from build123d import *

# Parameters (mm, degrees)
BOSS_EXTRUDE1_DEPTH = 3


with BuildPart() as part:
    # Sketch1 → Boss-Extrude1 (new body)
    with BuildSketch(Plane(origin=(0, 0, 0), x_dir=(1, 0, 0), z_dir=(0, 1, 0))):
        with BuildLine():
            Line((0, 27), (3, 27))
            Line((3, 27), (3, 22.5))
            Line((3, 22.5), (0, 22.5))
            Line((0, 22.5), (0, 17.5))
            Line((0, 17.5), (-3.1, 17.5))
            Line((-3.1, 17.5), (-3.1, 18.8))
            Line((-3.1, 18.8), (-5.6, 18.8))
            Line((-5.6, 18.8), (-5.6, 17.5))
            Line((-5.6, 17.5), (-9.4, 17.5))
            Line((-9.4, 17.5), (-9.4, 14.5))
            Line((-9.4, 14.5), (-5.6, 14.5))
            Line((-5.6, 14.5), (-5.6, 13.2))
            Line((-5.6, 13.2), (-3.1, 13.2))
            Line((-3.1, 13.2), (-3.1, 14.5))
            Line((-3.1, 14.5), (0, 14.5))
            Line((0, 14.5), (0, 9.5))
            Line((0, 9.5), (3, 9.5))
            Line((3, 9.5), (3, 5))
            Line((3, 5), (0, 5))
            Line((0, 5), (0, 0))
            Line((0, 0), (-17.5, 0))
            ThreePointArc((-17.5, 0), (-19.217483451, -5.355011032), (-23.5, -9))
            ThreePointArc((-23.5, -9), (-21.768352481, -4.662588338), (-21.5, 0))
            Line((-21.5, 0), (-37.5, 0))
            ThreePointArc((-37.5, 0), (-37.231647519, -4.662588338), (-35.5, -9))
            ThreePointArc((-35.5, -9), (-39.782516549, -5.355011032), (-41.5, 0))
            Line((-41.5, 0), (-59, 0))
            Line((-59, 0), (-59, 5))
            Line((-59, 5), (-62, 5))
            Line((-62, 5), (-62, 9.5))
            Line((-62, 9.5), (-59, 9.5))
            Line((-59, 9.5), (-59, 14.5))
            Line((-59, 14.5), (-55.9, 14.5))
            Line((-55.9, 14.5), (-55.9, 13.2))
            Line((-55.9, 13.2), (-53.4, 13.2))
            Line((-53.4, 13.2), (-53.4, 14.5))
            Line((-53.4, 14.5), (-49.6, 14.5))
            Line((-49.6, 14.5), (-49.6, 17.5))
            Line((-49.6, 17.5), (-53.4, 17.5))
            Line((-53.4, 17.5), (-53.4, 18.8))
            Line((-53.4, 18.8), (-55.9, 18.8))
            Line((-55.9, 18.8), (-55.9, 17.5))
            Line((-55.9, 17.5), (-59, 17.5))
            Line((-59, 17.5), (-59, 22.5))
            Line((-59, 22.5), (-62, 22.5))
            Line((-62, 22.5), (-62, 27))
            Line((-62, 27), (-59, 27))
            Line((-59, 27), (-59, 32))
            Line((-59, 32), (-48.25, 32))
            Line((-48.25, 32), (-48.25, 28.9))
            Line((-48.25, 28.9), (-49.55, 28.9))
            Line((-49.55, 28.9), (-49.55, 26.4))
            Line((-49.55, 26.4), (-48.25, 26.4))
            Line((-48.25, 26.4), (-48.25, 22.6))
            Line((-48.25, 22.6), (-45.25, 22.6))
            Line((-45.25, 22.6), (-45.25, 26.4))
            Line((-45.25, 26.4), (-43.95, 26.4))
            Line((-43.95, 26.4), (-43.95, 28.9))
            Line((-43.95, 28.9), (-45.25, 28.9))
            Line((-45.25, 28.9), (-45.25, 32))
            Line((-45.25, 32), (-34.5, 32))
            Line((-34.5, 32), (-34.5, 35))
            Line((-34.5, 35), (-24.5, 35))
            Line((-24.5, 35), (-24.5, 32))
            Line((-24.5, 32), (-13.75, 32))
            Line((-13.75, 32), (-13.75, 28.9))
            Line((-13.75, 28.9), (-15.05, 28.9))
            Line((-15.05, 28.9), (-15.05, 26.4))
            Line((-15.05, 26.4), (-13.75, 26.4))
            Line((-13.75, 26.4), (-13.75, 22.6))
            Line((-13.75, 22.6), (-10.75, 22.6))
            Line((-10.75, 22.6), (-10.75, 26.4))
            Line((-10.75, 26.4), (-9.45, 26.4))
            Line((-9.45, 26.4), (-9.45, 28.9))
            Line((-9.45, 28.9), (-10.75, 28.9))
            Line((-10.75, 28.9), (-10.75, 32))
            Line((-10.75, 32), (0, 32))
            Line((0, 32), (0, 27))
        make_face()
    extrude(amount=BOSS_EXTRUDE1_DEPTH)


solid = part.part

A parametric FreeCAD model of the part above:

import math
import FreeCAD as App
import Part
import Sketcher

doc = App.newDocument("Part")
params = doc.addObject("Spreadsheet::Sheet", "Params")
for row, (alias, value) in enumerate([
    ("sketch1_width", "3 mm"),
    ("sketch1_width2", "10 mm"),
    ("sketch1_width3", "16 mm"),
    ("sketch1_height", "5 mm"),
    ("sketch1_width4", "1.3 mm"),
    ("pad1_length", "3 mm"),
], start=1):
    params.set(f"A{row}", alias)
    params.set(f"B{row}", "=" + value)
    params.setAlias(f"B{row}", alias)

body = doc.addObject("PartDesign::Body", "Body")

# Sketch on XZ plane
sketch1 = doc.addObject("Sketcher::SketchObject", "Sketch")
body.addObject(sketch1)
sketch1.AttachmentSupport = (doc.XZ_Plane, [""])
sketch1.MapMode = "FlatFace"
sketch1.addGeometry([
    Part.LineSegment(App.Vector(3, -27, 0), App.Vector(0, -27, 0)),  # 0
    Part.LineSegment(App.Vector(0, -27, 0), App.Vector(0, -32, 0)),  # 1
    Part.LineSegment(App.Vector(0, -32, 0), App.Vector(-10.75, -32, 0)),  # 2
    Part.LineSegment(App.Vector(-10.75, -32, 0), App.Vector(-10.75, -28.9, 0)),  # 3
    Part.LineSegment(App.Vector(-10.75, -28.9, 0), App.Vector(-9.45, -28.9, 0)),  # 4
    Part.LineSegment(App.Vector(-9.45, -28.9, 0), App.Vector(-9.45, -26.4, 0)),  # 5
    Part.LineSegment(App.Vector(-9.45, -26.4, 0), App.Vector(-10.75, -26.4, 0)),  # 6
    Part.LineSegment(App.Vector(-10.75, -26.4, 0), App.Vector(-10.75, -22.6, 0)),  # 7
    Part.LineSegment(App.Vector(-10.75, -22.6, 0), App.Vector(-13.75, -22.6, 0)),  # 8
    Part.LineSegment(App.Vector(-13.75, -22.6, 0), App.Vector(-13.75, -26.4, 0)),  # 9
    Part.LineSegment(App.Vector(-13.75, -26.4, 0), App.Vector(-15.05, -26.4, 0)),  # 10
    Part.LineSegment(App.Vector(-15.05, -26.4, 0), App.Vector(-15.05, -28.9, 0)),  # 11
    Part.LineSegment(App.Vector(-15.05, -28.9, 0), App.Vector(-13.75, -28.9, 0)),  # 12
    Part.LineSegment(App.Vector(-13.75, -28.9, 0), App.Vector(-13.75, -32, 0)),  # 13
    Part.LineSegment(App.Vector(-13.75, -32, 0), App.Vector(-24.5, -32, 0)),  # 14
    Part.LineSegment(App.Vector(-24.5, -32, 0), App.Vector(-24.5, -35, 0)),  # 15
    Part.LineSegment(App.Vector(-24.5, -35, 0), App.Vector(-34.5, -35, 0)),  # 16
    Part.LineSegment(App.Vector(-34.5, -35, 0), App.Vector(-34.5, -32, 0)),  # 17
    Part.LineSegment(App.Vector(-34.5, -32, 0), App.Vector(-45.25, -32, 0)),  # 18
    Part.LineSegment(App.Vector(-45.25, -32, 0), App.Vector(-45.25, -28.9, 0)),  # 19
    Part.LineSegment(App.Vector(-45.25, -28.9, 0), App.Vector(-43.95, -28.9, 0)),  # 20
    Part.LineSegment(App.Vector(-43.95, -28.9, 0), App.Vector(-43.95, -26.4, 0)),  # 21
    Part.LineSegment(App.Vector(-43.95, -26.4, 0), App.Vector(-45.25, -26.4, 0)),  # 22
    Part.LineSegment(App.Vector(-45.25, -26.4, 0), App.Vector(-45.25, -22.6, 0)),  # 23
    Part.LineSegment(App.Vector(-45.25, -22.6, 0), App.Vector(-48.25, -22.6, 0)),  # 24
    Part.LineSegment(App.Vector(-48.25, -22.6, 0), App.Vector(-48.25, -26.4, 0)),  # 25
    Part.LineSegment(App.Vector(-48.25, -26.4, 0), App.Vector(-49.55, -26.4, 0)),  # 26
    Part.LineSegment(App.Vector(-49.55, -26.4, 0), App.Vector(-49.55, -28.9, 0)),  # 27
    Part.LineSegment(App.Vector(-49.55, -28.9, 0), App.Vector(-48.25, -28.9, 0)),  # 28
    Part.LineSegment(App.Vector(-48.25, -28.9, 0), App.Vector(-48.25, -32, 0)),  # 29
    Part.LineSegment(App.Vector(-48.25, -32, 0), App.Vector(-59, -32, 0)),  # 30
    Part.LineSegment(App.Vector(-59, -32, 0), App.Vector(-59, -27, 0)),  # 31
    Part.LineSegment(App.Vector(-59, -27, 0), App.Vector(-62, -27, 0)),  # 32
    Part.LineSegment(App.Vector(-62, -27, 0), App.Vector(-62, -22.5, 0)),  # 33
    Part.LineSegment(App.Vector(-62, -22.5, 0), App.Vector(-59, -22.5, 0)),  # 34
    Part.LineSegment(App.Vector(-59, -22.5, 0), App.Vector(-59, -17.5, 0)),  # 35
    Part.LineSegment(App.Vector(-59, -17.5, 0), App.Vector(-55.9, -17.5, 0)),  # 36
    Part.LineSegment(App.Vector(-55.9, -17.5, 0), App.Vector(-55.9, -18.8, 0)),  # 37
    Part.LineSegment(App.Vector(-55.9, -18.8, 0), App.Vector(-53.4, -18.8, 0)),  # 38
    Part.LineSegment(App.Vector(-53.4, -18.8, 0), App.Vector(-53.4, -17.5, 0)),  # 39
    Part.LineSegment(App.Vector(-53.4, -17.5, 0), App.Vector(-49.6, -17.5, 0)),  # 40
    Part.LineSegment(App.Vector(-49.6, -17.5, 0), App.Vector(-49.6, -14.5, 0)),  # 41
    Part.LineSegment(App.Vector(-49.6, -14.5, 0), App.Vector(-53.4, -14.5, 0)),  # 42
    Part.LineSegment(App.Vector(-53.4, -14.5, 0), App.Vector(-53.4, -13.2, 0)),  # 43
    Part.LineSegment(App.Vector(-53.4, -13.2, 0), App.Vector(-55.9, -13.2, 0)),  # 44
    Part.LineSegment(App.Vector(-55.9, -13.2, 0), App.Vector(-55.9, -14.5, 0)),  # 45
    Part.LineSegment(App.Vector(-55.9, -14.5, 0), App.Vector(-59, -14.5, 0)),  # 46
    Part.LineSegment(App.Vector(-59, -14.5, 0), App.Vector(-59, -9.5, 0)),  # 47
    Part.LineSegment(App.Vector(-59, -9.5, 0), App.Vector(-62, -9.5, 0)),  # 48
    Part.LineSegment(App.Vector(-62, -9.5, 0), App.Vector(-62, -5, 0)),  # 49
    Part.LineSegment(App.Vector(-62, -5, 0), App.Vector(-59, -5, 0)),  # 50
    Part.LineSegment(App.Vector(-59, -5, 0), App.Vector(-59, 0, 0)),  # 51
    Part.LineSegment(App.Vector(-59, 0, 0), App.Vector(-41.5, 0, 0)),  # 52
    Part.ArcOfCircle(Part.Circle(App.Vector(-31.246623, -0.335584, 0), App.Vector(0, 0, 1), 10.258867), math.radians(114.494439), math.radians(178.125426)),  # 53
    Part.ArcOfCircle(Part.Circle(App.Vector(-23.027193, 1.506043, 0), App.Vector(0, 0, 1), 14.550956), math.radians(149.001558), math.radians(185.940827)),  # 54
    Part.LineSegment(App.Vector(-37.5, 0, 0), App.Vector(-21.5, 0, 0)),  # 55
    Part.ArcOfCircle(Part.Circle(App.Vector(-35.972807, 1.506043, 0), App.Vector(0, 0, 1), 14.550956), math.radians(-5.940827), math.radians(30.998442)),  # 56
    Part.ArcOfCircle(Part.Circle(App.Vector(-27.753377, -0.335584, 0), App.Vector(0, 0, 1), 10.258867), math.radians(1.874574), math.radians(65.505561)),  # 57
    Part.LineSegment(App.Vector(-17.5, 0, 0), App.Vector(0, 0, 0)),  # 58
    Part.LineSegment(App.Vector(0, 0, 0), App.Vector(0, -5, 0)),  # 59
    Part.LineSegment(App.Vector(0, -5, 0), App.Vector(3, -5, 0)),  # 60
    Part.LineSegment(App.Vector(3, -5, 0), App.Vector(3, -9.5, 0)),  # 61
    Part.LineSegment(App.Vector(3, -9.5, 0), App.Vector(0, -9.5, 0)),  # 62
    Part.LineSegment(App.Vector(0, -9.5, 0), App.Vector(0, -14.5, 0)),  # 63
    Part.LineSegment(App.Vector(0, -14.5, 0), App.Vector(-3.1, -14.5, 0)),  # 64
    Part.LineSegment(App.Vector(-3.1, -14.5, 0), App.Vector(-3.1, -13.2, 0)),  # 65
    Part.LineSegment(App.Vector(-3.1, -13.2, 0), App.Vector(-5.6, -13.2, 0)),  # 66
    Part.LineSegment(App.Vector(-5.6, -13.2, 0), App.Vector(-5.6, -14.5, 0)),  # 67
    Part.LineSegment(App.Vector(-5.6, -14.5, 0), App.Vector(-9.4, -14.5, 0)),  # 68
    Part.LineSegment(App.Vector(-9.4, -14.5, 0), App.Vector(-9.4, -17.5, 0)),  # 69
    Part.LineSegment(App.Vector(-9.4, -17.5, 0), App.Vector(-5.6, -17.5, 0)),  # 70
    Part.LineSegment(App.Vector(-5.6, -17.5, 0), App.Vector(-5.6, -18.8, 0)),  # 71
    Part.LineSegment(App.Vector(-5.6, -18.8, 0), App.Vector(-3.1, -18.8, 0)),  # 72
    Part.LineSegment(App.Vector(-3.1, -18.8, 0), App.Vector(-3.1, -17.5, 0)),  # 73
    Part.LineSegment(App.Vector(-3.1, -17.5, 0), App.Vector(0, -17.5, 0)),  # 74
    Part.LineSegment(App.Vector(0, -17.5, 0), App.Vector(0, -22.5, 0)),  # 75
    Part.LineSegment(App.Vector(0, -22.5, 0), App.Vector(3, -22.5, 0)),  # 76
    Part.LineSegment(App.Vector(3, -22.5, 0), App.Vector(3, -27, 0)),  # 77
], False)
sketch1.addConstraint([
    Sketcher.Constraint("Coincident", 0, 2, 1, 1),
    Sketcher.Constraint("Coincident", 1, 2, 2, 1),
    Sketcher.Constraint("Coincident", 2, 2, 3, 1),
    Sketcher.Constraint("Coincident", 3, 2, 4, 1),
    Sketcher.Constraint("Coincident", 4, 2, 5, 1),
    Sketcher.Constraint("Coincident", 5, 2, 6, 1),
    Sketcher.Constraint("Coincident", 6, 2, 7, 1),
    Sketcher.Constraint("Coincident", 7, 2, 8, 1),
    Sketcher.Constraint("Coincident", 8, 2, 9, 1),
    Sketcher.Constraint("Coincident", 9, 2, 10, 1),
    Sketcher.Constraint("Coincident", 10, 2, 11, 1),
    Sketcher.Constraint("Coincident", 11, 2, 12, 1),
    Sketcher.Constraint("Coincident", 12, 2, 13, 1),
    Sketcher.Constraint("Coincident", 13, 2, 14, 1),
    Sketcher.Constraint("Coincident", 14, 2, 15, 1),
    Sketcher.Constraint("Coincident", 15, 2, 16, 1),
    Sketcher.Constraint("Coincident", 16, 2, 17, 1),
    Sketcher.Constraint("Coincident", 17, 2, 18, 1),
    Sketcher.Constraint("Coincident", 18, 2, 19, 1),
    Sketcher.Constraint("Coincident", 19, 2, 20, 1),
    Sketcher.Constraint("Coincident", 20, 2, 21, 1),
    Sketcher.Constraint("Coincident", 21, 2, 22, 1),
    Sketcher.Constraint("Coincident", 22, 2, 23, 1),
    Sketcher.Constraint("Coincident", 23, 2, 24, 1),
    Sketcher.Constraint("Coincident", 24, 2, 25, 1),
    Sketcher.Constraint("Coincident", 25, 2, 26, 1),
    Sketcher.Constraint("Coincident", 26, 2, 27, 1),
    Sketcher.Constraint("Coincident", 27, 2, 28, 1),
    Sketcher.Constraint("Coincident", 28, 2, 29, 1),
    Sketcher.Constraint("Coincident", 29, 2, 30, 1),
    Sketcher.Constraint("Coincident", 30, 2, 31, 1),
    Sketcher.Constraint("Coincident", 31, 2, 32, 1),
    Sketcher.Constraint("Coincident", 32, 2, 33, 1),
    Sketcher.Constraint("Coincident", 33, 2, 34, 1),
    Sketcher.Constraint("Coincident", 34, 2, 35, 1),
    Sketcher.Constraint("Coincident", 35, 2, 36, 1),
    Sketcher.Constraint("Coincident", 36, 2, 37, 1),
    Sketcher.Constraint("Coincident", 37, 2, 38, 1),
    Sketcher.Constraint("Coincident", 38, 2, 39, 1),
    Sketcher.Constraint("Coincident", 39, 2, 40, 1),
    Sketcher.Constraint("Coincident", 40, 2, 41, 1),
    Sketcher.Constraint("Coincident", 41, 2, 42, 1),
    Sketcher.Constraint("Coincident", 42, 2, 43, 1),
    Sketcher.Constraint("Coincident", 43, 2, 44, 1),
    Sketcher.Constraint("Coincident", 44, 2, 45, 1),
    Sketcher.Constraint("Coincident", 45, 2, 46, 1),
    Sketcher.Constraint("Coincident", 46, 2, 47, 1),
    Sketcher.Constraint("Coincident", 47, 2, 48, 1),
    Sketcher.Constraint("Coincident", 48, 2, 49, 1),
    Sketcher.Constraint("Coincident", 49, 2, 50, 1),
    Sketcher.Constraint("Coincident", 50, 2, 51, 1),
    Sketcher.Constraint("Coincident", 51, 2, 52, 1),
    Sketcher.Constraint("Coincident", 52, 2, 53, 2),
    Sketcher.Constraint("Coincident", 53, 1, 54, 1),
    Sketcher.Constraint("Coincident", 54, 2, 55, 1),
    Sketcher.Constraint("Coincident", 55, 2, 56, 1),
    Sketcher.Constraint("Coincident", 56, 2, 57, 2),
    Sketcher.Constraint("Coincident", 57, 1, 58, 1),
    Sketcher.Constraint("Coincident", 58, 2, 59, 1),
    Sketcher.Constraint("Coincident", 59, 2, 60, 1),
    Sketcher.Constraint("Coincident", 60, 2, 61, 1),
    Sketcher.Constraint("Coincident", 61, 2, 62, 1),
    Sketcher.Constraint("Coincident", 62, 2, 63, 1),
    Sketcher.Constraint("Coincident", 63, 2, 64, 1),
    Sketcher.Constraint("Coincident", 64, 2, 65, 1),
    Sketcher.Constraint("Coincident", 65, 2, 66, 1),
    Sketcher.Constraint("Coincident", 66, 2, 67, 1),
    Sketcher.Constraint("Coincident", 67, 2, 68, 1),
    Sketcher.Constraint("Coincident", 68, 2, 69, 1),
    Sketcher.Constraint("Coincident", 69, 2, 70, 1),
    Sketcher.Constraint("Coincident", 70, 2, 71, 1),
    Sketcher.Constraint("Coincident", 71, 2, 72, 1),
    Sketcher.Constraint("Coincident", 72, 2, 73, 1),
    Sketcher.Constraint("Coincident", 73, 2, 74, 1),
    Sketcher.Constraint("Coincident", 74, 2, 75, 1),
    Sketcher.Constraint("Coincident", 75, 2, 76, 1),
    Sketcher.Constraint("Coincident", 76, 2, 77, 1),
    Sketcher.Constraint("Coincident", 77, 2, 0, 1),
    Sketcher.Constraint("Horizontal", 0),
    Sketcher.Constraint("Vertical", 1),
    Sketcher.Constraint("Horizontal", 2),
    Sketcher.Constraint("Vertical", 3),
    Sketcher.Constraint("Horizontal", 4),
    Sketcher.Constraint("Vertical", 5),
    Sketcher.Constraint("Horizontal", 6),
    Sketcher.Constraint("Vertical", 7),
    Sketcher.Constraint("Horizontal", 8),
    Sketcher.Constraint("Vertical", 9),
    Sketcher.Constraint("Horizontal", 10),
    Sketcher.Constraint("Vertical", 11),
    Sketcher.Constraint("Horizontal", 12),
    Sketcher.Constraint("Vertical", 13),
    Sketcher.Constraint("Horizontal", 14),
    Sketcher.Constraint("Vertical", 15),
    Sketcher.Constraint("Horizontal", 16),
    Sketcher.Constraint("Vertical", 17),
    Sketcher.Constraint("Horizontal", 18),
    Sketcher.Constraint("Vertical", 19),
    Sketcher.Constraint("Horizontal", 20),
    Sketcher.Constraint("Vertical", 21),
    Sketcher.Constraint("Horizontal", 22),
    Sketcher.Constraint("Vertical", 23),
    Sketcher.Constraint("Horizontal", 24),
    Sketcher.Constraint("Vertical", 25),
    Sketcher.Constraint("Horizontal", 26),
    Sketcher.Constraint("Vertical", 27),
    Sketcher.Constraint("Horizontal", 28),
    Sketcher.Constraint("Vertical", 29),
    Sketcher.Constraint("Horizontal", 30),
    Sketcher.Constraint("Vertical", 31),
    Sketcher.Constraint("Horizontal", 32),
    Sketcher.Constraint("Vertical", 33),
    Sketcher.Constraint("Horizontal", 34),
    Sketcher.Constraint("Vertical", 35),
    Sketcher.Constraint("Horizontal", 36),
    Sketcher.Constraint("Vertical", 37),
    Sketcher.Constraint("Horizontal", 38),
    Sketcher.Constraint("Vertical", 39),
    Sketcher.Constraint("Horizontal", 40),
    Sketcher.Constraint("Vertical", 41),
    Sketcher.Constraint("Horizontal", 42),
    Sketcher.Constraint("Vertical", 43),
    Sketcher.Constraint("Horizontal", 44),
    Sketcher.Constraint("Vertical", 45),
    Sketcher.Constraint("Horizontal", 46),
    Sketcher.Constraint("Vertical", 47),
    Sketcher.Constraint("Horizontal", 48),
    Sketcher.Constraint("Vertical", 49),
    Sketcher.Constraint("Horizontal", 50),
    Sketcher.Constraint("Vertical", 51),
    Sketcher.Constraint("Horizontal", 52),
    Sketcher.Constraint("Horizontal", 55),
    Sketcher.Constraint("Horizontal", 58),
    Sketcher.Constraint("Vertical", 59),
    Sketcher.Constraint("Horizontal", 60),
    Sketcher.Constraint("Vertical", 61),
    Sketcher.Constraint("Horizontal", 62),
    Sketcher.Constraint("Vertical", 63),
    Sketcher.Constraint("Horizontal", 64),
    Sketcher.Constraint("Vertical", 65),
    Sketcher.Constraint("Horizontal", 66),
    Sketcher.Constraint("Vertical", 67),
    Sketcher.Constraint("Horizontal", 68),
    Sketcher.Constraint("Vertical", 69),
    Sketcher.Constraint("Horizontal", 70),
    Sketcher.Constraint("Vertical", 71),
    Sketcher.Constraint("Horizontal", 72),
    Sketcher.Constraint("Vertical", 73),
    Sketcher.Constraint("Horizontal", 74),
    Sketcher.Constraint("Vertical", 75),
    Sketcher.Constraint("Horizontal", 76),
    Sketcher.Constraint("Vertical", 77),
    Sketcher.Constraint("Coincident", 58, 2, -1, 1),
    Sketcher.Constraint("Equal", 54, 56),
    Sketcher.Constraint("Equal", 53, 57),
    Sketcher.Constraint("PointOnObject", 0, 2, -2),
    Sketcher.Constraint("PointOnObject", 51, 2, -1),
    Sketcher.Constraint("PointOnObject", 54, 2, -1),
    Sketcher.Constraint("PointOnObject", 62, 2, -2),
    Sketcher.Constraint("PointOnObject", 74, 2, -2),
    Sketcher.Constraint("Horizontal", 54, 3, 56, 3),
    Sketcher.Constraint("Horizontal", 53, 3, 57, 3),
    Sketcher.Constraint("Horizontal", 6, 2, 9, 2),
    Sketcher.Constraint("Horizontal", 4, 2, 11, 2),
    Sketcher.Constraint("Horizontal", 2, 2, 13, 2),
    Sketcher.Constraint("Horizontal", 14, 2, 17, 2),
    Sketcher.Constraint("Horizontal", 12, 2, 19, 2),
    Sketcher.Constraint("Horizontal", 10, 2, 21, 2),
    Sketcher.Constraint("Horizontal", 8, 2, 23, 2),
    Sketcher.Constraint("Horizontal", 22, 2, 25, 2),
    Sketcher.Constraint("Horizontal", 20, 2, 27, 2),
    Sketcher.Constraint("Horizontal", 18, 2, 29, 2),
    Sketcher.Constraint("Horizontal", 0, 2, 31, 2),
    Sketcher.Constraint("Horizontal", 36, 2, 39, 2),
    Sketcher.Constraint("Horizontal", 42, 2, 45, 2),
    Sketcher.Constraint("Horizontal", 53, 1, 56, 2),
    Sketcher.Constraint("Horizontal", 50, 2, 59, 2),
    Sketcher.Constraint("Horizontal", 48, 2, 61, 2),
    Sketcher.Constraint("Horizontal", 46, 2, 63, 2),
    Sketcher.Constraint("Horizontal", 44, 2, 65, 2),
    Sketcher.Constraint("Horizontal", 64, 2, 67, 2),
    Sketcher.Constraint("Horizontal", 40, 2, 69, 2),
    Sketcher.Constraint("Horizontal", 38, 2, 71, 2),
    Sketcher.Constraint("Horizontal", 70, 2, 73, 2),
    Sketcher.Constraint("Horizontal", 34, 2, 75, 2),
    Sketcher.Constraint("Vertical", 3, 2, 6, 2),
    Sketcher.Constraint("Vertical", 9, 2, 12, 2),
    Sketcher.Constraint("Vertical", 19, 2, 22, 2),
    Sketcher.Constraint("Vertical", 25, 2, 28, 2),
    Sketcher.Constraint("Vertical", 31, 2, 34, 2),
    Sketcher.Constraint("Vertical", 39, 2, 42, 2),
    Sketcher.Constraint("Vertical", 37, 2, 44, 2),
    Sketcher.Constraint("Vertical", 35, 2, 46, 2),
    Sketcher.Constraint("Vertical", 33, 2, 48, 2),
    Sketcher.Constraint("Vertical", 47, 2, 50, 2),
    Sketcher.Constraint("Vertical", 67, 2, 70, 2),
    Sketcher.Constraint("Vertical", 65, 2, 72, 2),
    Sketcher.Constraint("Vertical", 61, 2, 76, 2),
    Sketcher.Constraint("Equal", 0, 8),
    Sketcher.Constraint("Equal", 6, 10),
    Sketcher.Constraint("Equal", 2, 14),
    Sketcher.Constraint("Equal", 14, 18),
    Sketcher.Constraint("Equal", 12, 20),
    Sketcher.Constraint("Equal", 8, 24),
    Sketcher.Constraint("Equal", 22, 26),
    Sketcher.Constraint("Equal", 18, 30),
    Sketcher.Constraint("Equal", 24, 32),
    Sketcher.Constraint("Equal", 52, 58),
    Sketcher.Constraint("Equal", 46, 64),
    Sketcher.Constraint("Equal", 44, 66),
    Sketcher.Constraint("Equal", 42, 68),
    Sketcher.Constraint("Equal", 74, 3),
    Sketcher.Constraint("Equal", 72, 5),
    Sketcher.Constraint("Equal", 70, 7),
    Sketcher.Constraint("Equal", 76, 15),
    Sketcher.Constraint("Equal", 31, 35),
    Sketcher.Constraint("Equal", 28, 37),
    Sketcher.Constraint("Equal", 17, 41),
    Sketcher.Constraint("Equal", 39, 43),
    Sketcher.Constraint("Equal", 35, 47),
    Sketcher.Constraint("Equal", 33, 49),
    Sketcher.Constraint("Equal", 47, 51),
    Sketcher.Constraint("DistanceX", 0, 2, 0, 1, 3.0),
    Sketcher.Constraint("DistanceX", 16, 2, 16, 1, 10.0),
    Sketcher.Constraint("DistanceX", 55, 1, 55, 2, 16.0),
    Sketcher.Constraint("DistanceY", 1, 2, 1, 1, 5.0),
    Sketcher.Constraint("DistanceX", 4, 1, 4, 2, 1.3),
    Sketcher.Constraint("DistanceX", 36, 1, 36, 2, 3.1),
    Sketcher.Constraint("DistanceX", 38, 1, 38, 2, 2.5),
    Sketcher.Constraint("DistanceX", 40, 1, 40, 2, 3.8),
    Sketcher.Constraint("DistanceX", 52, 1, 52, 2, 17.5),
    Sketcher.Constraint("DistanceY", 33, 1, 33, 2, 4.5),
    Sketcher.Constraint("DistanceX", 30, 2, -1, 1, 59.0),
    Sketcher.Constraint("DistanceY", -1, 1, 53, 1, 9.0),
    Sketcher.Constraint("DistanceX", 53, 1, -1, 1, 35.5),
    Sketcher.Constraint("Radius", 53, 10.258867),
    Sketcher.Constraint("Radius", 54, 14.550956),
])
sketch1.setExpression("Constraints[222]", "Params.sketch1_width")
sketch1.setExpression("Constraints[223]", "Params.sketch1_width2")
sketch1.setExpression("Constraints[224]", "Params.sketch1_width3")
sketch1.setExpression("Constraints[225]", "Params.sketch1_height")
sketch1.setExpression("Constraints[226]", "Params.sketch1_width4")
pad1 = doc.addObject("PartDesign::Pad", "Pad")
body.addObject(pad1)
pad1.Profile = sketch1
pad1.setExpression("Length", "Params.pad1_length")
pad1.Reversed = True

doc.recompute()
